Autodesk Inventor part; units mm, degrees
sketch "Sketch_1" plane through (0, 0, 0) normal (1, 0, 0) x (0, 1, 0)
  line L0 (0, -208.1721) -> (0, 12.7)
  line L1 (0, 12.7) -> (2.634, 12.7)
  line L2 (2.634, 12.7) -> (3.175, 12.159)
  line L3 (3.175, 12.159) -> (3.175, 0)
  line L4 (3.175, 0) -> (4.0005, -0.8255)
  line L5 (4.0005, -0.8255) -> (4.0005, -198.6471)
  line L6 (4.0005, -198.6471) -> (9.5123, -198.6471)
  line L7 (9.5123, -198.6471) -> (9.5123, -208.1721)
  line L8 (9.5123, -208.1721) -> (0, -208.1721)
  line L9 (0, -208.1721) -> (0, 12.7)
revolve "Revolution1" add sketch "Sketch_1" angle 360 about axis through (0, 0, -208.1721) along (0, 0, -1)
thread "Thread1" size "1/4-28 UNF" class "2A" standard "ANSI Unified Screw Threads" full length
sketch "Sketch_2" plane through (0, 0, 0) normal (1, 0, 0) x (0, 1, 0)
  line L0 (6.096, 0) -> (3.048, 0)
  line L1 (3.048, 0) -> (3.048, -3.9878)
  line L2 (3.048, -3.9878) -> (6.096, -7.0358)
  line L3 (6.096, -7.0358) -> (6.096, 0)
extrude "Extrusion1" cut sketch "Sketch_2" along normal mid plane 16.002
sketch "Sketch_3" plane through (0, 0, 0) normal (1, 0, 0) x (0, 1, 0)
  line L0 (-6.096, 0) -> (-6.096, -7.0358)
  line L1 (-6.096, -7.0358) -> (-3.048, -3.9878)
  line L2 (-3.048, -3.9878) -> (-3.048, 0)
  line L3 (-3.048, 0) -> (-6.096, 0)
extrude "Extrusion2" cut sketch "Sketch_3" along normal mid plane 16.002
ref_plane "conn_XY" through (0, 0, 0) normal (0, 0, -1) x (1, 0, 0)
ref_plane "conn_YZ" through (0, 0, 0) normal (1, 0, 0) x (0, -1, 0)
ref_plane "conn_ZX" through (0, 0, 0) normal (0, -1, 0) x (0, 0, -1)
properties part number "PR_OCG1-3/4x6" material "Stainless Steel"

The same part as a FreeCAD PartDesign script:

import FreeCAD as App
import Part
import Sketcher

V = App.Vector
Q = App.Units.Quantity


def add_polygon(sketch, points):
    """Adds a closed chain of lines whose ends are joined by coincident constraints."""
    first, n = sketch.GeometryCount, len(points)
    for a, b in zip(points, points[1:] + points[:1]):
        sketch.addGeometry(Part.LineSegment(App.Vector(*a, 0), App.Vector(*b, 0)), False)
    for i in range(n):
        sketch.addConstraint(Sketcher.Constraint("Coincident", first + i, 2, first + (i + 1) % n, 1))

doc = App.newDocument("Part")
body = doc.addObject("PartDesign::Body", "Body")

# Sketch on YZ plane
sketch1 = doc.addObject("Sketcher::SketchObject", "Sketch")
body.addObject(sketch1)
sketch1.AttachmentSupport = (doc.YZ_Plane, [""])
sketch1.MapMode = "FlatFace"
add_polygon(sketch1, [(0, 12.7), (0, -208.2), (9.5, -208.2), (9.5, -198.6), (4, -198.6), (4, -0.8), (3.2, 0), (3.2, 12.2), (2.6, 12.7)])  # lines 0-8
sketch1.addConstraint(Sketcher.Constraint("Vertical", 0))
sketch1.addConstraint(Sketcher.Constraint("Horizontal", 1))
sketch1.addConstraint(Sketcher.Constraint("Vertical", 2))
sketch1.addConstraint(Sketcher.Constraint("Horizontal", 3))
sketch1.addConstraint(Sketcher.Constraint("Vertical", 4))
sketch1.addConstraint(Sketcher.Constraint("Vertical", 6))
sketch1.addConstraint(Sketcher.Constraint("Horizontal", 8))
sketch1.addConstraint(Sketcher.Constraint("PointOnObject", 0, 2, -2))
sketch1.addConstraint(Sketcher.Constraint("PointOnObject", 5, 2, -1))
sketch1.addConstraint(Sketcher.Constraint("Parallel", 5, 7))
sketch1.addConstraint(Sketcher.Constraint("Angle", 5, Q("135 deg")))
sketch1.addConstraint(Sketcher.Constraint("DistanceY", -1, 1, 7, 2, Q("0.5 in")))
sketch1.addConstraint(Sketcher.Constraint("DistanceX", 3, 2, 3, 1, Q("0.217 in")))
sketch1.addConstraint(Sketcher.Constraint("DistanceY", 2, 1, 2, 2, Q("0.375 in")))
sketch1.addConstraint(Sketcher.Constraint("DistanceX", 1, 1, 1, 2, Q("0.3745 in")))
sketch1.addConstraint(Sketcher.Constraint("DistanceX", 8, 2, 8, 1, Q("0.1037 in")))
sketch1.addConstraint(Sketcher.Constraint("DistanceY", 6, 1, 6, 2, Q("0.4787 in")))
sketch1.addConstraint(Sketcher.Constraint("DistanceY", 0, 2, 0, 1, Q("220.872 mm")))
revolution = doc.addObject("PartDesign::Revolution", "Revolution")
body.addObject(revolution)
revolution.Profile = sketch1
revolution.ReferenceAxis = (sketch1, ["V_Axis"])
revolution.Angle = 360

# Sketch on YZ plane
sketch2 = doc.addObject("Sketcher::SketchObject", "Sketch001")
body.addObject(sketch2)
sketch2.AttachmentSupport = (doc.YZ_Plane, [""])
sketch2.MapMode = "FlatFace"
add_polygon(sketch2, [(6.1, -7), (6.1, 0), (3, 0), (3, -4)])  # lines 0-3
sketch2.addConstraint(Sketcher.Constraint("Vertical", 0))
sketch2.addConstraint(Sketcher.Constraint("Horizontal", 1))
sketch2.addConstraint(Sketcher.Constraint("Vertical", 2))
sketch2.addConstraint(Sketcher.Constraint("PointOnObject", 0, 2, -1))
sketch2.addConstraint(Sketcher.Constraint("Angle", 3, Q("-45 deg")))
sketch2.addConstraint(Sketcher.Constraint("DistanceX", 1, 2, 1, 1, Q("0.12 in")))
sketch2.addConstraint(Sketcher.Constraint("DistanceY", 0, 1, 0, 2, Q("0.277 in")))
sketch2.addConstraint(Sketcher.Constraint("DistanceX", -1, 1, 0, 2, Q("0.24 in")))
pocket1 = doc.addObject("PartDesign::Pocket", "Pocket")
body.addObject(pocket1)
pocket1.Profile = sketch2
pocket1.Length = Q("0.63 in")
pocket1.Midplane = True

# Sketch on YZ plane
sketch3 = doc.addObject("Sketcher::SketchObject", "Sketch002")
body.addObject(sketch3)
sketch3.AttachmentSupport = (doc.YZ_Plane, [""])
sketch3.MapMode = "FlatFace"
add_polygon(sketch3, [(-3, 0), (-6.1, 0), (-6.1, -7), (-3, -4)])  # lines 0-3
sketch3.addConstraint(Sketcher.Constraint("Horizontal", 0))
sketch3.addConstraint(Sketcher.Constraint("Vertical", 1))
sketch3.addConstraint(Sketcher.Constraint("Vertical", 3))
sketch3.addConstraint(Sketcher.Constraint("PointOnObject", 0, 2, -1))
sketch3.addConstraint(Sketcher.Constraint("Angle", 2, Q("45 deg")))
sketch3.addConstraint(Sketcher.Constraint("DistanceX", 0, 2, 0, 1, Q("0.12 in")))
sketch3.addConstraint(Sketcher.Constraint("DistanceY", 1, 2, 1, 1, Q("0.277 in")))
sketch3.addConstraint(Sketcher.Constraint("DistanceX", 0, 2, -1, 1, Q("0.24 in")))
pocket2 = doc.addObject("PartDesign::Pocket", "Pocket001")
body.addObject(pocket2)
pocket2.Profile = sketch3
pocket2.Length = Q("0.63 in")
pocket2.Midplane = True

doc.recompute()
